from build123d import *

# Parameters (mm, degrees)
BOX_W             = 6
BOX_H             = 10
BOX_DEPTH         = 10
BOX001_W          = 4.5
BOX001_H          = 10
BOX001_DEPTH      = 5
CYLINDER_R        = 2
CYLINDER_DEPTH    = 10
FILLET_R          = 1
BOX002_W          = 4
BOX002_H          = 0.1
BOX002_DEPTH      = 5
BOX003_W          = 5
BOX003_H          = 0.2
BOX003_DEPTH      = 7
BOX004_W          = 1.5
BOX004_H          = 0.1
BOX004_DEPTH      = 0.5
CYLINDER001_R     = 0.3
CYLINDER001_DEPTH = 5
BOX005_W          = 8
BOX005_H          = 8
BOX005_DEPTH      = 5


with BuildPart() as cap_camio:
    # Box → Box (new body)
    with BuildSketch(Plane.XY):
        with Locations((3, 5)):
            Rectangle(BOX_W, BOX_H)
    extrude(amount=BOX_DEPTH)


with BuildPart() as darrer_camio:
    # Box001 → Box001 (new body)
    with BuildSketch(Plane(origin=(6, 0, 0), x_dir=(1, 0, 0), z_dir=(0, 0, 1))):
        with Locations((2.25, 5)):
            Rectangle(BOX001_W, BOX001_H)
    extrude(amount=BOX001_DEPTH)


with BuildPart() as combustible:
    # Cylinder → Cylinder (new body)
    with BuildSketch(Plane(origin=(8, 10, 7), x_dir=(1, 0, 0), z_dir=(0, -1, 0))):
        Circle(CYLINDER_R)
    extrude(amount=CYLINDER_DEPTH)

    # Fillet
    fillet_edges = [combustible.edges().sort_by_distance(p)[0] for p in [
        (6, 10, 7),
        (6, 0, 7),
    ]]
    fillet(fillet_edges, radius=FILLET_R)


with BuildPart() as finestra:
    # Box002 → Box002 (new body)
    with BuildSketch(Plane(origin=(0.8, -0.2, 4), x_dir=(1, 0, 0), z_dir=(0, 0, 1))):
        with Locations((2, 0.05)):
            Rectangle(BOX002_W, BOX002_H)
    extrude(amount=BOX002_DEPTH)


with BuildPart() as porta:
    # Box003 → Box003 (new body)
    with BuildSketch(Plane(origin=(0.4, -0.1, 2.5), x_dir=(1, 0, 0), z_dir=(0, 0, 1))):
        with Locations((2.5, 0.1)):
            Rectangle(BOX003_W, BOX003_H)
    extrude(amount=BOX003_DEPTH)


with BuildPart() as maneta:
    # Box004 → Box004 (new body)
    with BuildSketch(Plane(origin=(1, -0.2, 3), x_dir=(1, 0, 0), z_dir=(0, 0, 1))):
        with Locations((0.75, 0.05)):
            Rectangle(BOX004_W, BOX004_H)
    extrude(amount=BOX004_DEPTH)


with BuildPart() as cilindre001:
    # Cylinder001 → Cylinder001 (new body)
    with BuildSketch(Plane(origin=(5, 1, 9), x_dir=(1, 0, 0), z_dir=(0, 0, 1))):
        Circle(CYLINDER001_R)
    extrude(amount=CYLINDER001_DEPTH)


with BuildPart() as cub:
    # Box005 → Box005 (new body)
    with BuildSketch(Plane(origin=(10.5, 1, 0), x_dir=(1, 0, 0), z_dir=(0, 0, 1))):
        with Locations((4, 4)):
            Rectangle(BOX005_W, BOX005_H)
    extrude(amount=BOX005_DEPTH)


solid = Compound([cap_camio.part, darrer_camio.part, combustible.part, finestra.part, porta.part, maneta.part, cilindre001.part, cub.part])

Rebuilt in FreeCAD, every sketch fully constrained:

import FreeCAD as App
import Part
import Sketcher

V = App.Vector


def edges_at(feature, points):
    """Names of the edges that pass closest to the given points."""
    edges = feature.Shape.Edges
    near = lambda p: min(range(len(edges)), key=lambda i: edges[i].distToShape(Part.Vertex(*p))[0])
    return sorted({f"Edge{near(p) + 1}" for p in points})

doc = App.newDocument("Part")
body = doc.addObject("PartDesign::Body", "Body")

# Sketch on XY plane
sketch1 = body.newObject("Sketcher::SketchObject", "Sketch")
sketch1.AttachmentSupport = (doc.getObject("XY_Plane"), [""])
sketch1.MapMode = "FlatFace"
sketch1.addGeometry([
    Part.LineSegment(V(0, 10, 0), V(0, 0, 0)),
    Part.LineSegment(V(0, 0, 0), V(6, 0, 0)),
    Part.LineSegment(V(6, 0, 0), V(6, 10, 0)),
    Part.LineSegment(V(6, 10, 0), V(0, 10, 0)),
], False)
sketch1.addConstraint([
    Sketcher.Constraint("Coincident", 0, 2, 1, 1),
    Sketcher.Constraint("Coincident", 1, 2, 2, 1),
    Sketcher.Constraint("Coincident", 2, 2, 3, 1),
    Sketcher.Constraint("Coincident", 3, 2, 0, 1),
    Sketcher.Constraint("Vertical", 0),
    Sketcher.Constraint("Horizontal", 1),
    Sketcher.Constraint("Vertical", 2),
    Sketcher.Constraint("Horizontal", 3),
    Sketcher.Constraint("Coincident", 0, 2, -1, 1),
    Sketcher.Constraint("DistanceX", 1, 1, 1, 2, 6.0),
    Sketcher.Constraint("DistanceY", 0, 2, 0, 1, 10.0),
])
pad1 = body.newObject("PartDesign::Pad", "Pad")
pad1.Profile = sketch1
pad1.Length = 10
body2 = doc.addObject("PartDesign::Body", "Body001")

# Sketch on XY plane
sketch2 = body2.newObject("Sketcher::SketchObject", "Sketch001")
sketch2.AttachmentSupport = (doc.getObject("XY_Plane001"), [""])
sketch2.MapMode = "FlatFace"
sketch2.addGeometry([
    Part.LineSegment(V(6, 10, 0), V(6, 0, 0)),
    Part.LineSegment(V(6, 0, 0), V(10.5, 0, 0)),
    Part.LineSegment(V(10.5, 0, 0), V(10.5, 10, 0)),
    Part.LineSegment(V(10.5, 10, 0), V(6, 10, 0)),
], False)
sketch2.addConstraint([
    Sketcher.Constraint("Coincident", 0, 2, 1, 1),
    Sketcher.Constraint("Coincident", 1, 2, 2, 1),
    Sketcher.Constraint("Coincident", 2, 2, 3, 1),
    Sketcher.Constraint("Coincident", 3, 2, 0, 1),
    Sketcher.Constraint("Vertical", 0),
    Sketcher.Constraint("Horizontal", 1),
    Sketcher.Constraint("Vertical", 2),
    Sketcher.Constraint("Horizontal", 3),
    Sketcher.Constraint("PointOnObject", 0, 2, -1),
    Sketcher.Constraint("DistanceY", 0, 2, 0, 1, 10.0),
    Sketcher.Constraint("DistanceX", 1, 1, 1, 2, 4.5),
    Sketcher.Constraint("DistanceX", -1, 1, 0, 2, 6.0),
])
pad2 = body2.newObject("PartDesign::Pad", "Pad001")
pad2.Profile = sketch2
pad2.Length = 5
body3 = doc.addObject("PartDesign::Body", "Body002")

# Sketch on XZ plane
sketch3 = body3.newObject("Sketcher::SketchObject", "Sketch002")
sketch3.AttachmentSupport = (doc.getObject("XZ_Plane002"), [""])
sketch3.MapMode = "FlatFace"
sketch3.AttachmentOffset = App.Placement(V(0, 0, -10), App.Rotation())
sketch3.addGeometry(Part.Circle(V(8, 7, 0), V(0, 0, 1), 2), False)
sketch3.addConstraint([
    Sketcher.Constraint("Diameter", 0, 4.0),
    Sketcher.Constraint("DistanceX", -1, 1, 0, 3, 8.0),
    Sketcher.Constraint("DistanceY", -1, 1, 0, 3, 7.0),
])
pad3 = body3.newObject("PartDesign::Pad", "Pad002")
pad3.Profile = sketch3
pad3.Length = 10
doc.recompute()

fillet = body3.newObject("PartDesign::Fillet", "Fillet")
fillet.Base = (pad3, edges_at(pad3, [(6, 10, 7), (6, 0, 7)]))
fillet.Radius = 1
body4 = doc.addObject("PartDesign::Body", "Body003")

# Sketch on XY plane
sketch4 = body4.newObject("Sketcher::SketchObject", "Sketch003")
sketch4.AttachmentSupport = (doc.getObject("XY_Plane003"), [""])
sketch4.MapMode = "FlatFace"
sketch4.AttachmentOffset = App.Placement(V(0, 0, 4), App.Rotation())
sketch4.addGeometry([
    Part.LineSegment(V(0.8, -0.1, 0), V(0.8, -0.2, 0)),
    Part.LineSegment(V(0.8, -0.2, 0), V(4.8, -0.2, 0)),
    Part.LineSegment(V(4.8, -0.2, 0), V(4.8, -0.1, 0)),
    Part.LineSegment(V(4.8, -0.1, 0), V(0.8, -0.1, 0)),
], False)
sketch4.addConstraint([
    Sketcher.Constraint("Coincident", 0, 2, 1, 1),
    Sketcher.Constraint("Coincident", 1, 2, 2, 1),
    Sketcher.Constraint("Coincident", 2, 2, 3, 1),
    Sketcher.Constraint("Coincident", 3, 2, 0, 1),
    Sketcher.Constraint("Vertical", 0),
    Sketcher.Constraint("Horizontal", 1),
    Sketcher.Constraint("Vertical", 2),
    Sketcher.Constraint("Horizontal", 3),
    Sketcher.Constraint("DistanceX", 1, 1, 1, 2, 4.0),
    Sketcher.Constraint("DistanceY", 0, 2, 0, 1, 0.1),
    Sketcher.Constraint("DistanceX", -1, 1, 0, 2, 0.8),
    Sketcher.Constraint("DistanceY", 0, 2, -1, 1, 0.2),
])
pad4 = body4.newObject("PartDesign::Pad", "Pad003")
pad4.Profile = sketch4
pad4.Length = 5
body5 = doc.addObject("PartDesign::Body", "Body004")

# Sketch on XY plane
sketch5 = body5.newObject("Sketcher::SketchObject", "Sketch004")
sketch5.AttachmentSupport = (doc.getObject("XY_Plane004"), [""])
sketch5.MapMode = "FlatFace"
sketch5.AttachmentOffset = App.Placement(V(0, 0, 2.5), App.Rotation())
sketch5.addGeometry([
    Part.LineSegment(V(0.4, 0.1, 0), V(0.4, -0.1, 0)),
    Part.LineSegment(V(0.4, -0.1, 0), V(5.4, -0.1, 0)),
    Part.LineSegment(V(5.4, -0.1, 0), V(5.4, 0.1, 0)),
    Part.LineSegment(V(5.4, 0.1, 0), V(0.4, 0.1, 0)),
], False)
sketch5.addConstraint([
    Sketcher.Constraint("Coincident", 0, 2, 1, 1),
    Sketcher.Constraint("Coincident", 1, 2, 2, 1),
    Sketcher.Constraint("Coincident", 2, 2, 3, 1),
    Sketcher.Constraint("Coincident", 3, 2, 0, 1),
    Sketcher.Constraint("Vertical", 0),
    Sketcher.Constraint("Horizontal", 1),
    Sketcher.Constraint("Vertical", 2),
    Sketcher.Constraint("Horizontal", 3),
    Sketcher.Constraint("DistanceX", 1, 1, 1, 2, 5.0),
    Sketcher.Constraint("DistanceY", 0, 2, 0, 1, 0.2),
    Sketcher.Constraint("DistanceX", -1, 1, 0, 2, 0.4),
    Sketcher.Constraint("DistanceY", 0, 2, -1, 1, 0.1),
])
pad5 = body5.newObject("PartDesign::Pad", "Pad004")
pad5.Profile = sketch5
pad5.Length = 7
body6 = doc.addObject("PartDesign::Body", "Body005")

# Sketch on XY plane
sketch6 = body6.newObject("Sketcher::SketchObject", "Sketch005")
sketch6.AttachmentSupport = (doc.getObject("XY_Plane005"), [""])
sketch6.MapMode = "FlatFace"
sketch6.AttachmentOffset = App.Placement(V(0, 0, 3), App.Rotation())
sketch6.addGeometry([
    Part.LineSegment(V(1, -0.1, 0), V(1, -0.2, 0)),
    Part.LineSegment(V(1, -0.2, 0), V(2.5, -0.2, 0)),
    Part.LineSegment(V(2.5, -0.2, 0), V(2.5, -0.1, 0)),
    Part.LineSegment(V(2.5, -0.1, 0), V(1, -0.1, 0)),
], False)
sketch6.addConstraint([
    Sketcher.Constraint("Coincident", 0, 2, 1, 1),
    Sketcher.Constraint("Coincident", 1, 2, 2, 1),
    Sketcher.Constraint("Coincident", 2, 2, 3, 1),
    Sketcher.Constraint("Coincident", 3, 2, 0, 1),
    Sketcher.Constraint("Vertical", 0),
    Sketcher.Constraint("Horizontal", 1),
    Sketcher.Constraint("Vertical", 2),
    Sketcher.Constraint("Horizontal", 3),
    Sketcher.Constraint("DistanceX", 1, 1, 1, 2, 1.5),
    Sketcher.Constraint("DistanceY", 0, 2, 0, 1, 0.1),
    Sketcher.Constraint("DistanceX", -1, 1, 0, 2, 1.0),
    Sketcher.Constraint("DistanceY", 0, 2, -1, 1, 0.2),
])
pad6 = body6.newObject("PartDesign::Pad", "Pad005")
pad6.Profile = sketch6
pad6.Length = 0.5
body7 = doc.addObject("PartDesign::Body", "Body006")

# Sketch on XY plane
sketch7 = body7.newObject("Sketcher::SketchObject", "Sketch006")
sketch7.AttachmentSupport = (doc.getObject("XY_Plane006"), [""])
sketch7.MapMode = "FlatFace"
sketch7.AttachmentOffset = App.Placement(V(0, 0, 9), App.Rotation())
sketch7.addGeometry(Part.Circle(V(5, 1, 0), V(0, 0, 1), 0.3), False)
sketch7.addConstraint([
    Sketcher.Constraint("Diameter", 0, 0.6),
    Sketcher.Constraint("DistanceX", -1, 1, 0, 3, 5.0),
    Sketcher.Constraint("DistanceY", -1, 1, 0, 3, 1.0),
])
pad7 = body7.newObject("PartDesign::Pad", "Pad006")
pad7.Profile = sketch7
pad7.Length = 5
body8 = doc.addObject("PartDesign::Body", "Body007")

# Sketch on XY plane
sketch8 = body8.newObject("Sketcher::SketchObject", "Sketch007")
sketch8.AttachmentSupport = (doc.getObject("XY_Plane007"), [""])
sketch8.MapMode = "FlatFace"
sketch8.addGeometry([
    Part.LineSegment(V(10, 9, 0), V(10, 1, 0)),
    Part.LineSegment(V(10, 1, 0), V(18, 1, 0)),
    Part.LineSegment(V(18, 1, 0), V(18, 9, 0)),
    Part.LineSegment(V(18, 9, 0), V(10, 9, 0)),
], False)
sketch8.addConstraint([
    Sketcher.Constraint("Coincident", 0, 2, 1, 1),
    Sketcher.Constraint("Coincident", 1, 2, 2, 1),
    Sketcher.Constraint("Coincident", 2, 2, 3, 1),
    Sketcher.Constraint("Coincident", 3, 2, 0, 1),
    Sketcher.Constraint("Vertical", 0),
    Sketcher.Constraint("Horizontal", 1),
    Sketcher.Constraint("Vertical", 2),
    Sketcher.Constraint("Horizontal", 3),
    Sketcher.Constraint("Equal", 3, 0),
    Sketcher.Constraint("DistanceX", 1, 1, 1, 2, 8.0),
    Sketcher.Constraint("DistanceY", -1, 1, 0, 2, 1.0),
    Sketcher.Constraint("DistanceX", -1, 1, 0, 2, 10.5),
])
pad8 = body8.newObject("PartDesign::Pad", "Pad007")
pad8.Profile = sketch8
pad8.Length = 5

doc.recompute()
